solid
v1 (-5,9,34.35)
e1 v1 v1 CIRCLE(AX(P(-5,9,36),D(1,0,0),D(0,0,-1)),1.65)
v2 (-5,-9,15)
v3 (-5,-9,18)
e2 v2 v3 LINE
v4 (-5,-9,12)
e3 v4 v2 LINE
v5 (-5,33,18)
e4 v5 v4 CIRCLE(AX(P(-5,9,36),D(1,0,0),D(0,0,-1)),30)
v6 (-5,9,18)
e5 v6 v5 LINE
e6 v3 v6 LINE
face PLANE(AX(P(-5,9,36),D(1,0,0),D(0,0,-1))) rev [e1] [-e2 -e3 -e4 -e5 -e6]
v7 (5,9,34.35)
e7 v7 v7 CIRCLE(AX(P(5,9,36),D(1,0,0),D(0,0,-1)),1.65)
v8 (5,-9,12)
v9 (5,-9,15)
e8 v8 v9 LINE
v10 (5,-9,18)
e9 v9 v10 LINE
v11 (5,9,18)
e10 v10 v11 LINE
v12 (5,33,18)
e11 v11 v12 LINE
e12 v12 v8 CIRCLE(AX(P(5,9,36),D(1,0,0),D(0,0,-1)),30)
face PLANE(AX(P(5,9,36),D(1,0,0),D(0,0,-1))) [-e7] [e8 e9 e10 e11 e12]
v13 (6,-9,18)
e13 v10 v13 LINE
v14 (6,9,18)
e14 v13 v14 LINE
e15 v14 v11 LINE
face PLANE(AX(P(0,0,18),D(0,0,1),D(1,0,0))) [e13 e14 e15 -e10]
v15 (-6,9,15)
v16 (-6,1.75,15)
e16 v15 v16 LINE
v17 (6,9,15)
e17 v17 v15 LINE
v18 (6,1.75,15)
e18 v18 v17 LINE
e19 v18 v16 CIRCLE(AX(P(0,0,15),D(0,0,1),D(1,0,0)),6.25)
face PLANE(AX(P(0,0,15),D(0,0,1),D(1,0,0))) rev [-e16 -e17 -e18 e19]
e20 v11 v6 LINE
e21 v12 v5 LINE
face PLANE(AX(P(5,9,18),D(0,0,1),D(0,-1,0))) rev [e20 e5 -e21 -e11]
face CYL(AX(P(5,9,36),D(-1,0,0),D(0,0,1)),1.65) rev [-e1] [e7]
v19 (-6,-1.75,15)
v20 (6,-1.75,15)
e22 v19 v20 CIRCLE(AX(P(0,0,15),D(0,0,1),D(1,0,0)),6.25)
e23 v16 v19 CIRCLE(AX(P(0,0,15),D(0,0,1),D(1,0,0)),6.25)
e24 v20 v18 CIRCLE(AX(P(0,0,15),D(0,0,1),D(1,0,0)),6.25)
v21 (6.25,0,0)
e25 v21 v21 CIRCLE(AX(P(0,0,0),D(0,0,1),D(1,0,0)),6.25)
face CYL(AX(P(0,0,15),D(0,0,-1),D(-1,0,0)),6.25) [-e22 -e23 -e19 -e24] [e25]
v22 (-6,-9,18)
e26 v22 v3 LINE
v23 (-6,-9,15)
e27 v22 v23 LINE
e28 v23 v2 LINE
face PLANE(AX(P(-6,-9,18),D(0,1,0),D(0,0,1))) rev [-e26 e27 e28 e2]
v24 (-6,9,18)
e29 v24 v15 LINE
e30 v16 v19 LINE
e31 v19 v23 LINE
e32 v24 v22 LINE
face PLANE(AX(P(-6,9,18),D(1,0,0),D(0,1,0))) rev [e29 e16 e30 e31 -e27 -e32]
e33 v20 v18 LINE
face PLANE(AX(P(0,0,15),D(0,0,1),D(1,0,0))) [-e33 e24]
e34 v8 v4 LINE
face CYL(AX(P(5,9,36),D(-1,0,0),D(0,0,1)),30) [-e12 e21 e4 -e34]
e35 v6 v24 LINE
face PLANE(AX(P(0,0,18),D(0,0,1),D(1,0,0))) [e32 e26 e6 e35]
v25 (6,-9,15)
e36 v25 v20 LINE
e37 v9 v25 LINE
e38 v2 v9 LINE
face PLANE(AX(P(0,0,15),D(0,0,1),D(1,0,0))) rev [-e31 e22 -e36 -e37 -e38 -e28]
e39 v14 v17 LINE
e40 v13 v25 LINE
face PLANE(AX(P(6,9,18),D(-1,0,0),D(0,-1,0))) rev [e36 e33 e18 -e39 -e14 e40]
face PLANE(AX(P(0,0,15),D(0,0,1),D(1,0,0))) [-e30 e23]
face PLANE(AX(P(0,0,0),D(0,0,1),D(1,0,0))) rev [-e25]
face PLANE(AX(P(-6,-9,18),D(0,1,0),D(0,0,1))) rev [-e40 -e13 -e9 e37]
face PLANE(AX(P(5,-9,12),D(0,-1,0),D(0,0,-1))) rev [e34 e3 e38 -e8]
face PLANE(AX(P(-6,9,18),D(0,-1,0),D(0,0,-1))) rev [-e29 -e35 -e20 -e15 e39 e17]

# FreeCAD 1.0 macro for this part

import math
import FreeCAD as App
import Part
import Sketcher

V = App.Vector
Q = App.Units.Quantity

doc = App.newDocument("Part")
body = doc.addObject("PartDesign::Body", "Body")

# Sketch on XY plane
sketch1 = body.newObject("Sketcher::SketchObject", "Sketch")
sketch1.AttachmentSupport = (doc.getObject("XY_Plane"), [""])
sketch1.MapMode = "FlatFace"
sketch1.addGeometry(Part.Circle(V(0, 0, 0), V(0, 0, 1), 6), False)
sketch1.addConstraint([
    Sketcher.Constraint("Coincident", 0, 3, -1, 1),
    Sketcher.Constraint("Diameter", 0, Q("12.5 mm")),
])
pad1 = body.newObject("PartDesign::Pad", "Pad")
pad1.Profile = sketch1
pad1.Length = 15

# Sketch on XY plane
sketch2 = body.newObject("Sketcher::SketchObject", "Sketch001")
sketch2.AttachmentSupport = (doc.getObject("XY_Plane"), [""])
sketch2.MapMode = "FlatFace"
sketch2.AttachmentOffset = App.Placement(V(0, 0, 15), App.Rotation())
sketch2.addGeometry([
    Part.LineSegment(V(-6, 9, 0), V(-6, -9, 0)),
    Part.LineSegment(V(-6, -9, 0), V(6, -9, 0)),
    Part.LineSegment(V(6, -9, 0), V(6, 9, 0)),
    Part.LineSegment(V(6, 9, 0), V(-6, 9, 0)),
], False)
sketch2.addConstraint([
    Sketcher.Constraint("Coincident", 0, 2, 1, 1),
    Sketcher.Constraint("Coincident", 1, 2, 2, 1),
    Sketcher.Constraint("Coincident", 2, 2, 3, 1),
    Sketcher.Constraint("Coincident", 3, 2, 0, 1),
    Sketcher.Constraint("Vertical", 0),
    Sketcher.Constraint("Horizontal", 1),
    Sketcher.Constraint("Vertical", 2),
    Sketcher.Constraint("Horizontal", 3),
    Sketcher.Constraint("Symmetric", 0, 2, 2, 2, -1, 1),
    Sketcher.Constraint("DistanceX", 1, 1, 1, 2, Q("12 mm")),
    Sketcher.Constraint("DistanceY", 0, 2, 0, 1, Q("18 mm")),
])
pad2 = body.newObject("PartDesign::Pad", "Pad001")
pad2.Profile = sketch2
pad2.Length = 3

# Sketch on YZ plane
sketch3 = body.newObject("Sketcher::SketchObject", "Sketch002")
sketch3.AttachmentSupport = (doc.getObject("YZ_Plane"), [""])
sketch3.MapMode = "FlatFace"
sketch3.addGeometry([
    Part.LineSegment(V(-9, 12, 0), V(-9, 18, 0)),
    Part.LineSegment(V(-9, 18, 0), V(33, 18, 0)),
    Part.ArcOfCircle(Part.Circle(V(9, 36, 0), V(0, 0, 1), 30), math.radians(-37), math.radians(233)),
    Part.Circle(V(9, 36, 0), V(0, 0, 1), 1.6),
], False)
sketch3.addConstraint([
    Sketcher.Constraint("Coincident", 0, 2, 1, 1),
    Sketcher.Constraint("Coincident", 1, 2, 2, 1),
    Sketcher.Constraint("Coincident", 2, 2, 0, 1),
    Sketcher.Constraint("Vertical", 0),
    Sketcher.Constraint("Horizontal", 1),
    Sketcher.Constraint("Coincident", 3, 3, 2, 3),
    Sketcher.Constraint("Radius", 2, Q("30 mm")),
    Sketcher.Constraint("Diameter", 3, Q("3.3 mm")),
    Sketcher.Constraint("DistanceX", 1, 1, 1, 2, Q("42 mm")),
    Sketcher.Constraint("DistanceY", 0, 1, 0, 2, Q("6 mm")),
    Sketcher.Constraint("DistanceX", -1, 1, 2, 3, Q("9 mm")),
    Sketcher.Constraint("DistanceY", -1, 1, 2, 3, Q("36 mm")),
])
pad3 = body.newObject("PartDesign::Pad", "Pad002")
pad3.Profile = sketch3
pad3.Length = 10
pad3.Midplane = True

doc.recompute()
